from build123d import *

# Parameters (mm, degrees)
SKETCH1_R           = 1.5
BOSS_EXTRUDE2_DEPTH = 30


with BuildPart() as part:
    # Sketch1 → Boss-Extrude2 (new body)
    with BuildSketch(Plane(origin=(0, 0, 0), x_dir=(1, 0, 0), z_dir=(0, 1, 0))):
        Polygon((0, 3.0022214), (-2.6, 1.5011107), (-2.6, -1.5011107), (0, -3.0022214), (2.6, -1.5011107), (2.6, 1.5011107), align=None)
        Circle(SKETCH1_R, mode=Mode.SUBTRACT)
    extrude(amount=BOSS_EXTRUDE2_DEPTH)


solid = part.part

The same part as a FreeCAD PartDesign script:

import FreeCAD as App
import Part
import Sketcher
Q = App.Units.Quantity


def add_polygon(sketch, points):
    """Adds a closed chain of lines whose ends are joined by coincident constraints."""
    first, n = sketch.GeometryCount, len(points)
    for a, b in zip(points, points[1:] + points[:1]):
        sketch.addGeometry(Part.LineSegment(App.Vector(*a, 0), App.Vector(*b, 0)), False)
    for i in range(n):
        sketch.addConstraint(Sketcher.Constraint("Coincident", first + i, 2, first + (i + 1) % n, 1))

doc = App.newDocument("Part")
body = doc.addObject("PartDesign::Body", "Body")

# Sketch on XZ plane
sketch1 = doc.addObject("Sketcher::SketchObject", "Sketch")
body.addObject(sketch1)
sketch1.AttachmentSupport = (doc.XZ_Plane, [""])
sketch1.MapMode = "FlatFace"
add_polygon(sketch1, [(0, -3), (-2.6, -1.5), (-2.6, 1.5), (0, 3), (2.6, 1.5), (2.6, -1.5)])  # lines 0-5
sketch1.addGeometry(Part.Circle(App.Vector(0, 0, 0), App.Vector(0, 0, 1), 1.5), False)  # 6
sketch1.addConstraint([
    Sketcher.Constraint("Vertical", 1),
    Sketcher.Constraint("Vertical", 4),
    Sketcher.Constraint("Coincident", 6, 3, -1, 1),
    Sketcher.Constraint("Symmetric", 0, 2, 3, 2, -1, 1),
    Sketcher.Constraint("Symmetric", 2, 2, 5, 2, -1, 1),
    Sketcher.Constraint("PointOnObject", 2, 2, -2),
    Sketcher.Constraint("Parallel", 2, 5),
    Sketcher.Constraint("Horizontal", 1, 2, 3, 2),
    Sketcher.Constraint("Diameter", 6, Q("3 mm")),
    Sketcher.Constraint("Angle", 0, Q("150 deg")),
    Sketcher.Constraint("DistanceX", 0, 2, -1, 1, Q("2.6 mm")),
    Sketcher.Constraint("DistanceY", 1, 1, 1, 2, Q("3.002221 mm")),
])
pad1 = doc.addObject("PartDesign::Pad", "Pad")
body.addObject(pad1)
pad1.Profile = sketch1
pad1.Length = 30
pad1.Reversed = True

doc.recompute()
